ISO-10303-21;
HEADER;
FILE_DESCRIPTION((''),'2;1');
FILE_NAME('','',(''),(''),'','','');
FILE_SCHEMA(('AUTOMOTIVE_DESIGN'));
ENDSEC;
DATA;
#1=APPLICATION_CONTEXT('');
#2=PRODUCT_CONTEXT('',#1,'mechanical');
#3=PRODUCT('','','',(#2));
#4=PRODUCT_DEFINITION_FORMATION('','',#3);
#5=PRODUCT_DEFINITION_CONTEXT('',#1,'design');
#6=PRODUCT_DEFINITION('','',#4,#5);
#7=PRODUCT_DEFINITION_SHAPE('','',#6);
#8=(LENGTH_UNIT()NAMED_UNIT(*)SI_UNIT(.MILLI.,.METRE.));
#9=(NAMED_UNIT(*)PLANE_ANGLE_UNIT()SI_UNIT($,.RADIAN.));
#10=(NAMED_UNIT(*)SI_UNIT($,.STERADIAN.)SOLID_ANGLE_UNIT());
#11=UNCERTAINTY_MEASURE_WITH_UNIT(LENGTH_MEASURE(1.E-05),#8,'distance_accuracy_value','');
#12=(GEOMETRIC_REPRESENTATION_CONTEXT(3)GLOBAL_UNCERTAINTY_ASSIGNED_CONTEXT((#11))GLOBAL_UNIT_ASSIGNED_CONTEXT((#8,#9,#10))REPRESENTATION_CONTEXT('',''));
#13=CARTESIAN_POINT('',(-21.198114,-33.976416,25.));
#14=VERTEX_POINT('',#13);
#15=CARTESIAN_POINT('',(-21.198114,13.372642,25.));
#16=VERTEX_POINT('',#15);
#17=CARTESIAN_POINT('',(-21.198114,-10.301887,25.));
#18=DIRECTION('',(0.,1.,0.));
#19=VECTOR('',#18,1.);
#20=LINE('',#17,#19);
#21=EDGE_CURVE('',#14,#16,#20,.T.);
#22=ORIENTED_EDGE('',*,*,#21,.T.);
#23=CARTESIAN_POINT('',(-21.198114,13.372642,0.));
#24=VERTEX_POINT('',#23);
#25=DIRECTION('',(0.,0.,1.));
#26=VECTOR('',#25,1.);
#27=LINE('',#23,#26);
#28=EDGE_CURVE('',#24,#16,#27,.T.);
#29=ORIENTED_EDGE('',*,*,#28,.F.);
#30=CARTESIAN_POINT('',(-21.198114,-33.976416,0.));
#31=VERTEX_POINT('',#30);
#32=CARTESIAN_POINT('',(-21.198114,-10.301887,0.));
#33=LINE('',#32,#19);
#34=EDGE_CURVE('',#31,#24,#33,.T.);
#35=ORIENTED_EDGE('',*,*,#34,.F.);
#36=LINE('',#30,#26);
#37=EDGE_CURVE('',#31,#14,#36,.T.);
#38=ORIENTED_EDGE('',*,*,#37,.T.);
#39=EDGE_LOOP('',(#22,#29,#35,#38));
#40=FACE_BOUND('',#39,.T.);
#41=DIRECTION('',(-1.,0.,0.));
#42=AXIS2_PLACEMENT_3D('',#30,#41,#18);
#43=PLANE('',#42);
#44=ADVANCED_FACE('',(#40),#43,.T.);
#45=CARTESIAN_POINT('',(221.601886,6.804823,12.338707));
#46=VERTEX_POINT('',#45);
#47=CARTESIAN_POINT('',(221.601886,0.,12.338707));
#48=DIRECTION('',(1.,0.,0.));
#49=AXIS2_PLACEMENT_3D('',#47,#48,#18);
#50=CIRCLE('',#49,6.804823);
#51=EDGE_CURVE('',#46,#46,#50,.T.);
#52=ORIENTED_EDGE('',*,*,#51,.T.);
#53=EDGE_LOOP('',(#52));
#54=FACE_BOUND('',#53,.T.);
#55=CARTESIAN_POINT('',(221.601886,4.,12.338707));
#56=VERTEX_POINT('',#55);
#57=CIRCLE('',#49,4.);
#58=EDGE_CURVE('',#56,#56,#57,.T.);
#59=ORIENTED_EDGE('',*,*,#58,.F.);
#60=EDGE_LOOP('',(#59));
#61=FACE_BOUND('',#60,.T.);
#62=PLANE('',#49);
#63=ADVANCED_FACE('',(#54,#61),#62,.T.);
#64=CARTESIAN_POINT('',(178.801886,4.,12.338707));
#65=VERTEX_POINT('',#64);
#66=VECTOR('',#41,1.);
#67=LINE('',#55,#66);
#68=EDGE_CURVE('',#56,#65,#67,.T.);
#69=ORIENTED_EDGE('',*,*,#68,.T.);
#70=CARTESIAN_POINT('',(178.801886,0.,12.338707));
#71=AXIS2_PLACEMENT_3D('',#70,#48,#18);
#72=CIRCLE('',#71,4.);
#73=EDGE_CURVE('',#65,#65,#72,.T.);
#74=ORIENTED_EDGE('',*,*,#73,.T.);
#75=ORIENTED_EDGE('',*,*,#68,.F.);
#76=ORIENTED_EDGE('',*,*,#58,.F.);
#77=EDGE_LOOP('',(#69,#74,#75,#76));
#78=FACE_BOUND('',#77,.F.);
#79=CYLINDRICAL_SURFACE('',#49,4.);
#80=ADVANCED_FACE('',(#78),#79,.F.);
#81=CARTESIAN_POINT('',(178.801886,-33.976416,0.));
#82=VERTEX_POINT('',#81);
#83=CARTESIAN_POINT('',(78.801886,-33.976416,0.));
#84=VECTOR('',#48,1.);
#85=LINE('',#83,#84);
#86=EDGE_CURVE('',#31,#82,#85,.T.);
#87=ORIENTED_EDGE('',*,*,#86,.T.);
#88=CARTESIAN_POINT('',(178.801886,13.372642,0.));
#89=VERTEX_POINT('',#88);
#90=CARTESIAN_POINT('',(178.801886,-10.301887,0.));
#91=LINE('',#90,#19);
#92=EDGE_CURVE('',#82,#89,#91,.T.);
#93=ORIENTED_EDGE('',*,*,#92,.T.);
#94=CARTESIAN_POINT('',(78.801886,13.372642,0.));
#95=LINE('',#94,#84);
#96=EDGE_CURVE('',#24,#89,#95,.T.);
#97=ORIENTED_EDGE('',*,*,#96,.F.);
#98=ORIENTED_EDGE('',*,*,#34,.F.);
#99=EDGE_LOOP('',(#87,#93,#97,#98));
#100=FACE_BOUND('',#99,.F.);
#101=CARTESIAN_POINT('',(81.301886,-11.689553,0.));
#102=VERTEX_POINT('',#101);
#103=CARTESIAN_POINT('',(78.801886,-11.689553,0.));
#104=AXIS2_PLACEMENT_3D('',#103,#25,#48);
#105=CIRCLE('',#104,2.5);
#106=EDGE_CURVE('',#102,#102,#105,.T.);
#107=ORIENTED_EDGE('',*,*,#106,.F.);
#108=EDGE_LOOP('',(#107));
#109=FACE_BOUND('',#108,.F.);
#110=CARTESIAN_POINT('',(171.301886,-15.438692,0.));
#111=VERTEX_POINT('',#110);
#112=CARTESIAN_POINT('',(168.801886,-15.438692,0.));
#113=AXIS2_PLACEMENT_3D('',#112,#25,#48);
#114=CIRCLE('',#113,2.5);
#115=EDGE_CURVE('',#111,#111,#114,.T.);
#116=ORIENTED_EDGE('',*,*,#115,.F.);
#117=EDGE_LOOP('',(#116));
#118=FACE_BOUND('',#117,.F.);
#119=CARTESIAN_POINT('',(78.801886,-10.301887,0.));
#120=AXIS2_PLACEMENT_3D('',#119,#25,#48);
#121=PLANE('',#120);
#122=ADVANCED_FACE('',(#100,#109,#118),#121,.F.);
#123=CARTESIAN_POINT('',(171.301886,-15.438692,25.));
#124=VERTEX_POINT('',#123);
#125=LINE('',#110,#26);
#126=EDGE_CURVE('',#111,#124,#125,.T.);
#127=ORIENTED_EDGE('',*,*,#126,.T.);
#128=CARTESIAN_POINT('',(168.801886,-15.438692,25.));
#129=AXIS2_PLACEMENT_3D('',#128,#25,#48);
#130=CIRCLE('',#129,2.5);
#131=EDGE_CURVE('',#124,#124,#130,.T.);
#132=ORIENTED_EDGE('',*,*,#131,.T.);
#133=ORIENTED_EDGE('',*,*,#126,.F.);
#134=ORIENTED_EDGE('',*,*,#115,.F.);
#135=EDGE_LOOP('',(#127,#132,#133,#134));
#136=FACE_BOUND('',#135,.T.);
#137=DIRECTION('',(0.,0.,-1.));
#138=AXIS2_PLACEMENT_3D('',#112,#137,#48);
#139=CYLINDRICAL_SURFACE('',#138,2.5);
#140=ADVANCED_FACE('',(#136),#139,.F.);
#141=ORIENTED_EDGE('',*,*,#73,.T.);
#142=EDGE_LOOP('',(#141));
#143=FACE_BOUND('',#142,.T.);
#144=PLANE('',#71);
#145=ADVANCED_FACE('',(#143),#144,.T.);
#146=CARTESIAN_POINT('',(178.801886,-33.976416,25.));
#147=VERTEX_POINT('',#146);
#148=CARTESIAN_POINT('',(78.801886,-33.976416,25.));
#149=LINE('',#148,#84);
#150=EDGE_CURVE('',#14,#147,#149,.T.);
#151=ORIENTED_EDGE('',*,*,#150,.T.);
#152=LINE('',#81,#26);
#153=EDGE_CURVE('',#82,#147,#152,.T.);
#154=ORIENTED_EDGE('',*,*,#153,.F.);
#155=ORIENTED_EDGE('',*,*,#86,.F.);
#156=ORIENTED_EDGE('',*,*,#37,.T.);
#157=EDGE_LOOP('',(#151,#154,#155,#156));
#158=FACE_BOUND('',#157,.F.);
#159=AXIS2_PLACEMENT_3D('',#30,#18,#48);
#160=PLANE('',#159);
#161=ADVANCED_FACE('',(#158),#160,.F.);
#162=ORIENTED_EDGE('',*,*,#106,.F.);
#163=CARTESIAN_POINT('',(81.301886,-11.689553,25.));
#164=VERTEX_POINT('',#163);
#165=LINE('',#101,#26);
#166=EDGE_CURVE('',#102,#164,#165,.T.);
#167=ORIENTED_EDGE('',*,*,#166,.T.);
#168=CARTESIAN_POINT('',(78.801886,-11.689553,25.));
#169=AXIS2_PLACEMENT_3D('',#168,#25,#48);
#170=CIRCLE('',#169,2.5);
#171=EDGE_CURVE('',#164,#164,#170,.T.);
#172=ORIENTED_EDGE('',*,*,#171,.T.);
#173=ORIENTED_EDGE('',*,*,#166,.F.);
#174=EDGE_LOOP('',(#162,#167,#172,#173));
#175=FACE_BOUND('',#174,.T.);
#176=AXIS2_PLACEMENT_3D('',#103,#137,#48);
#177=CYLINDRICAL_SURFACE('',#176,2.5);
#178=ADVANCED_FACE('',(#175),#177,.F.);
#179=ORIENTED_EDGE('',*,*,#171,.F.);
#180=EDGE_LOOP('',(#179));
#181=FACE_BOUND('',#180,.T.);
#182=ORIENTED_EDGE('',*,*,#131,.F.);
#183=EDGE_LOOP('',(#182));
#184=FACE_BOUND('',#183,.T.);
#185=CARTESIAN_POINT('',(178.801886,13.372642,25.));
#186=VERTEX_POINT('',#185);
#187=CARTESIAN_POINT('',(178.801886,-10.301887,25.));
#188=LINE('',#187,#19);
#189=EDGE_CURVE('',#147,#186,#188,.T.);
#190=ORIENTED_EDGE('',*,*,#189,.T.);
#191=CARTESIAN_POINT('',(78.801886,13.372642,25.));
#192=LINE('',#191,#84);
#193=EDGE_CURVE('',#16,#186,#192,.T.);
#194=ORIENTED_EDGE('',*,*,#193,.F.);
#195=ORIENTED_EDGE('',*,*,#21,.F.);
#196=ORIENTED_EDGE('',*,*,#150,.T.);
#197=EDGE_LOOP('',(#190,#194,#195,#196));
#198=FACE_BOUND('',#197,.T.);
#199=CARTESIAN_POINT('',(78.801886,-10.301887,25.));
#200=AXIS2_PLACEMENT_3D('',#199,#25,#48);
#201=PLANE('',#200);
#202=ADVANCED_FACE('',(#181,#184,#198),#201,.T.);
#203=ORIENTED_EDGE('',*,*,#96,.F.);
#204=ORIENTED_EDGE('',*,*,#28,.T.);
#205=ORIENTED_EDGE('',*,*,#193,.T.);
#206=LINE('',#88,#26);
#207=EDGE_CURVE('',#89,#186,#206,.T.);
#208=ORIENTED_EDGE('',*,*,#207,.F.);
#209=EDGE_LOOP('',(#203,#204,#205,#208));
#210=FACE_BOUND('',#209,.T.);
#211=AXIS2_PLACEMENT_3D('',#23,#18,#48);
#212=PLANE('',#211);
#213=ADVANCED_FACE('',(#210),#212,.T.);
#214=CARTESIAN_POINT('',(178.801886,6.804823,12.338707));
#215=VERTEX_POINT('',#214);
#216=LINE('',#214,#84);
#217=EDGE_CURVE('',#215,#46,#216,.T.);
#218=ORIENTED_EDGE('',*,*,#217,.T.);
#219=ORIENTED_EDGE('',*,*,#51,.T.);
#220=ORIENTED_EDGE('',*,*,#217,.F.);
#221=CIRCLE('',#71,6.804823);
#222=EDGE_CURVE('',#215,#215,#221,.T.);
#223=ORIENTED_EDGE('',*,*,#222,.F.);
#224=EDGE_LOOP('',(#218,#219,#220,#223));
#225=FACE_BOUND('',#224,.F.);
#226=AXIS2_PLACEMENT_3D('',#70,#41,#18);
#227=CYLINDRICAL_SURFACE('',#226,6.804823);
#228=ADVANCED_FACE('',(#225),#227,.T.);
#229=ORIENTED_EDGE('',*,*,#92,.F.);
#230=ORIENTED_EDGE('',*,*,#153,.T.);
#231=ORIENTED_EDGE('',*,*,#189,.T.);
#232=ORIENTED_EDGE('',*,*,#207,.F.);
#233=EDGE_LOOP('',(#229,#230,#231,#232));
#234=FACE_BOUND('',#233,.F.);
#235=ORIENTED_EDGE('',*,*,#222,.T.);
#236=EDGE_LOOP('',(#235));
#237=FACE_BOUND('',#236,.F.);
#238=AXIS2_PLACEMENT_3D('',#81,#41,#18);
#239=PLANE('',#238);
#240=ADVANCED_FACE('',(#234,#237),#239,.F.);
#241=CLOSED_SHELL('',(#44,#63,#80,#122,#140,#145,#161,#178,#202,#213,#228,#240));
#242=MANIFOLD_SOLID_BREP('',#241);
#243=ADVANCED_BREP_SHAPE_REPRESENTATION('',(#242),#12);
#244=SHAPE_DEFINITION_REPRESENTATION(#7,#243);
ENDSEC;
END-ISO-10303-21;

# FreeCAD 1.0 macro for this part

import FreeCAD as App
import Part
import Sketcher
from FreeCAD import Vector
Q = App.Units.Quantity


def add_polygon(sketch, points):
    """Adds a closed chain of lines whose ends are joined by coincident constraints."""
    first, n = sketch.GeometryCount, len(points)
    for a, b in zip(points, points[1:] + points[:1]):
        sketch.addGeometry(Part.LineSegment(App.Vector(*a, 0), App.Vector(*b, 0)), False)
    for i in range(n):
        sketch.addConstraint(Sketcher.Constraint("Coincident", first + i, 2, first + (i + 1) % n, 1))

doc = App.newDocument("Part")
body = doc.addObject("PartDesign::Body", "Body")

# Sketch on XY plane
sketch1 = body.newObject("Sketcher::SketchObject", "Sketch")
sketch1.AttachmentSupport = (doc.getObject("XY_Plane"), [""])
sketch1.MapMode = "FlatFace"
add_polygon(sketch1, [(-21.2, 13.4), (-21.2, -34), (178.8, -34), (178.8, 13.4)])  # lines 0-3
sketch1.addGeometry(Part.Circle(Vector(168.8, -15.4, 0), Vector(0, 0, 1), 2.5), False)  # 4
sketch1.addGeometry(Part.Circle(Vector(78.8, -11.7, 0), Vector(0, 0, 1), 2.5), False)  # 5
sketch1.addConstraint(Sketcher.Constraint("Vertical", 0))
sketch1.addConstraint(Sketcher.Constraint("Horizontal", 1))
sketch1.addConstraint(Sketcher.Constraint("Vertical", 2))
sketch1.addConstraint(Sketcher.Constraint("Horizontal", 3))
sketch1.addConstraint(Sketcher.Constraint("Equal", 4, 5))
sketch1.addConstraint(Sketcher.Constraint("Diameter", 4, Q("5 mm")))
sketch1.addConstraint(Sketcher.Constraint("DistanceX", 1, 1, 1, 2, Q("200 mm")))
sketch1.addConstraint(Sketcher.Constraint("DistanceX", 5, 3, 4, 3, Q("90 mm")))
sketch1.addConstraint(Sketcher.Constraint("DistanceX", 0, 2, 5, 3, Q("100 mm")))
sketch1.addConstraint(Sketcher.Constraint("DistanceY", 0, 2, 0, 1, Q("47.349059 mm")))
sketch1.addConstraint(Sketcher.Constraint("DistanceY", 4, 3, 5, 3, Q("3.749139 mm")))
sketch1.addConstraint(Sketcher.Constraint("DistanceX", -1, 1, 4, 3, Q("168.801886 mm")))
sketch1.addConstraint(Sketcher.Constraint("DistanceY", 4, 3, -1, 1, Q("15.438692 mm")))
sketch1.addConstraint(Sketcher.Constraint("DistanceY", 0, 2, -1, 1, Q("33.976416 mm")))
pad1 = body.newObject("PartDesign::Pad", "Pad")
pad1.Profile = sketch1
pad1.Length = 25

# Sketch on YZ plane
sketch2 = body.newObject("Sketcher::SketchObject", "Sketch001")
sketch2.AttachmentSupport = (doc.getObject("YZ_Plane"), [""])
sketch2.MapMode = "FlatFace"
sketch2.AttachmentOffset = App.Placement(Vector(0, 0, 178.801886), App.Rotation())
sketch2.addGeometry(Part.Circle(Vector(0, 12, 0), Vector(0, 0, 1), 7), False)
sketch2.addConstraint(Sketcher.Constraint("PointOnObject", 0, 3, -2))
sketch2.addConstraint(Sketcher.Constraint("Diameter", 0, Q("13.609646 mm")))
sketch2.addConstraint(Sketcher.Constraint("DistanceY", -1, 1, 0, 3, Q("12.338707 mm")))
pad2 = body.newObject("PartDesign::Pad", "Pad001")
pad2.Profile = sketch2
pad2.Length = 42.8

# Sketch on YZ plane
sketch3 = body.newObject("Sketcher::SketchObject", "Sketch002")
sketch3.AttachmentSupport = (doc.getObject("YZ_Plane"), [""])
sketch3.MapMode = "FlatFace"
sketch3.AttachmentOffset = App.Placement(Vector(0, 0, 221.601886), App.Rotation())
sketch3.addGeometry(Part.Circle(Vector(0, 12.3, 0), Vector(0, 0, 1), 4), False)
sketch3.addConstraint(Sketcher.Constraint("PointOnObject", 0, 3, -2))
sketch3.addConstraint(Sketcher.Constraint("Diameter", 0, Q("8 mm")))
sketch3.addConstraint(Sketcher.Constraint("DistanceY", -1, 1, 0, 3, Q("12.338707 mm")))
pocket1 = body.newObject("PartDesign::Pocket", "Pocket")
pocket1.Profile = sketch3
pocket1.Length = 42.8

doc.recompute()
